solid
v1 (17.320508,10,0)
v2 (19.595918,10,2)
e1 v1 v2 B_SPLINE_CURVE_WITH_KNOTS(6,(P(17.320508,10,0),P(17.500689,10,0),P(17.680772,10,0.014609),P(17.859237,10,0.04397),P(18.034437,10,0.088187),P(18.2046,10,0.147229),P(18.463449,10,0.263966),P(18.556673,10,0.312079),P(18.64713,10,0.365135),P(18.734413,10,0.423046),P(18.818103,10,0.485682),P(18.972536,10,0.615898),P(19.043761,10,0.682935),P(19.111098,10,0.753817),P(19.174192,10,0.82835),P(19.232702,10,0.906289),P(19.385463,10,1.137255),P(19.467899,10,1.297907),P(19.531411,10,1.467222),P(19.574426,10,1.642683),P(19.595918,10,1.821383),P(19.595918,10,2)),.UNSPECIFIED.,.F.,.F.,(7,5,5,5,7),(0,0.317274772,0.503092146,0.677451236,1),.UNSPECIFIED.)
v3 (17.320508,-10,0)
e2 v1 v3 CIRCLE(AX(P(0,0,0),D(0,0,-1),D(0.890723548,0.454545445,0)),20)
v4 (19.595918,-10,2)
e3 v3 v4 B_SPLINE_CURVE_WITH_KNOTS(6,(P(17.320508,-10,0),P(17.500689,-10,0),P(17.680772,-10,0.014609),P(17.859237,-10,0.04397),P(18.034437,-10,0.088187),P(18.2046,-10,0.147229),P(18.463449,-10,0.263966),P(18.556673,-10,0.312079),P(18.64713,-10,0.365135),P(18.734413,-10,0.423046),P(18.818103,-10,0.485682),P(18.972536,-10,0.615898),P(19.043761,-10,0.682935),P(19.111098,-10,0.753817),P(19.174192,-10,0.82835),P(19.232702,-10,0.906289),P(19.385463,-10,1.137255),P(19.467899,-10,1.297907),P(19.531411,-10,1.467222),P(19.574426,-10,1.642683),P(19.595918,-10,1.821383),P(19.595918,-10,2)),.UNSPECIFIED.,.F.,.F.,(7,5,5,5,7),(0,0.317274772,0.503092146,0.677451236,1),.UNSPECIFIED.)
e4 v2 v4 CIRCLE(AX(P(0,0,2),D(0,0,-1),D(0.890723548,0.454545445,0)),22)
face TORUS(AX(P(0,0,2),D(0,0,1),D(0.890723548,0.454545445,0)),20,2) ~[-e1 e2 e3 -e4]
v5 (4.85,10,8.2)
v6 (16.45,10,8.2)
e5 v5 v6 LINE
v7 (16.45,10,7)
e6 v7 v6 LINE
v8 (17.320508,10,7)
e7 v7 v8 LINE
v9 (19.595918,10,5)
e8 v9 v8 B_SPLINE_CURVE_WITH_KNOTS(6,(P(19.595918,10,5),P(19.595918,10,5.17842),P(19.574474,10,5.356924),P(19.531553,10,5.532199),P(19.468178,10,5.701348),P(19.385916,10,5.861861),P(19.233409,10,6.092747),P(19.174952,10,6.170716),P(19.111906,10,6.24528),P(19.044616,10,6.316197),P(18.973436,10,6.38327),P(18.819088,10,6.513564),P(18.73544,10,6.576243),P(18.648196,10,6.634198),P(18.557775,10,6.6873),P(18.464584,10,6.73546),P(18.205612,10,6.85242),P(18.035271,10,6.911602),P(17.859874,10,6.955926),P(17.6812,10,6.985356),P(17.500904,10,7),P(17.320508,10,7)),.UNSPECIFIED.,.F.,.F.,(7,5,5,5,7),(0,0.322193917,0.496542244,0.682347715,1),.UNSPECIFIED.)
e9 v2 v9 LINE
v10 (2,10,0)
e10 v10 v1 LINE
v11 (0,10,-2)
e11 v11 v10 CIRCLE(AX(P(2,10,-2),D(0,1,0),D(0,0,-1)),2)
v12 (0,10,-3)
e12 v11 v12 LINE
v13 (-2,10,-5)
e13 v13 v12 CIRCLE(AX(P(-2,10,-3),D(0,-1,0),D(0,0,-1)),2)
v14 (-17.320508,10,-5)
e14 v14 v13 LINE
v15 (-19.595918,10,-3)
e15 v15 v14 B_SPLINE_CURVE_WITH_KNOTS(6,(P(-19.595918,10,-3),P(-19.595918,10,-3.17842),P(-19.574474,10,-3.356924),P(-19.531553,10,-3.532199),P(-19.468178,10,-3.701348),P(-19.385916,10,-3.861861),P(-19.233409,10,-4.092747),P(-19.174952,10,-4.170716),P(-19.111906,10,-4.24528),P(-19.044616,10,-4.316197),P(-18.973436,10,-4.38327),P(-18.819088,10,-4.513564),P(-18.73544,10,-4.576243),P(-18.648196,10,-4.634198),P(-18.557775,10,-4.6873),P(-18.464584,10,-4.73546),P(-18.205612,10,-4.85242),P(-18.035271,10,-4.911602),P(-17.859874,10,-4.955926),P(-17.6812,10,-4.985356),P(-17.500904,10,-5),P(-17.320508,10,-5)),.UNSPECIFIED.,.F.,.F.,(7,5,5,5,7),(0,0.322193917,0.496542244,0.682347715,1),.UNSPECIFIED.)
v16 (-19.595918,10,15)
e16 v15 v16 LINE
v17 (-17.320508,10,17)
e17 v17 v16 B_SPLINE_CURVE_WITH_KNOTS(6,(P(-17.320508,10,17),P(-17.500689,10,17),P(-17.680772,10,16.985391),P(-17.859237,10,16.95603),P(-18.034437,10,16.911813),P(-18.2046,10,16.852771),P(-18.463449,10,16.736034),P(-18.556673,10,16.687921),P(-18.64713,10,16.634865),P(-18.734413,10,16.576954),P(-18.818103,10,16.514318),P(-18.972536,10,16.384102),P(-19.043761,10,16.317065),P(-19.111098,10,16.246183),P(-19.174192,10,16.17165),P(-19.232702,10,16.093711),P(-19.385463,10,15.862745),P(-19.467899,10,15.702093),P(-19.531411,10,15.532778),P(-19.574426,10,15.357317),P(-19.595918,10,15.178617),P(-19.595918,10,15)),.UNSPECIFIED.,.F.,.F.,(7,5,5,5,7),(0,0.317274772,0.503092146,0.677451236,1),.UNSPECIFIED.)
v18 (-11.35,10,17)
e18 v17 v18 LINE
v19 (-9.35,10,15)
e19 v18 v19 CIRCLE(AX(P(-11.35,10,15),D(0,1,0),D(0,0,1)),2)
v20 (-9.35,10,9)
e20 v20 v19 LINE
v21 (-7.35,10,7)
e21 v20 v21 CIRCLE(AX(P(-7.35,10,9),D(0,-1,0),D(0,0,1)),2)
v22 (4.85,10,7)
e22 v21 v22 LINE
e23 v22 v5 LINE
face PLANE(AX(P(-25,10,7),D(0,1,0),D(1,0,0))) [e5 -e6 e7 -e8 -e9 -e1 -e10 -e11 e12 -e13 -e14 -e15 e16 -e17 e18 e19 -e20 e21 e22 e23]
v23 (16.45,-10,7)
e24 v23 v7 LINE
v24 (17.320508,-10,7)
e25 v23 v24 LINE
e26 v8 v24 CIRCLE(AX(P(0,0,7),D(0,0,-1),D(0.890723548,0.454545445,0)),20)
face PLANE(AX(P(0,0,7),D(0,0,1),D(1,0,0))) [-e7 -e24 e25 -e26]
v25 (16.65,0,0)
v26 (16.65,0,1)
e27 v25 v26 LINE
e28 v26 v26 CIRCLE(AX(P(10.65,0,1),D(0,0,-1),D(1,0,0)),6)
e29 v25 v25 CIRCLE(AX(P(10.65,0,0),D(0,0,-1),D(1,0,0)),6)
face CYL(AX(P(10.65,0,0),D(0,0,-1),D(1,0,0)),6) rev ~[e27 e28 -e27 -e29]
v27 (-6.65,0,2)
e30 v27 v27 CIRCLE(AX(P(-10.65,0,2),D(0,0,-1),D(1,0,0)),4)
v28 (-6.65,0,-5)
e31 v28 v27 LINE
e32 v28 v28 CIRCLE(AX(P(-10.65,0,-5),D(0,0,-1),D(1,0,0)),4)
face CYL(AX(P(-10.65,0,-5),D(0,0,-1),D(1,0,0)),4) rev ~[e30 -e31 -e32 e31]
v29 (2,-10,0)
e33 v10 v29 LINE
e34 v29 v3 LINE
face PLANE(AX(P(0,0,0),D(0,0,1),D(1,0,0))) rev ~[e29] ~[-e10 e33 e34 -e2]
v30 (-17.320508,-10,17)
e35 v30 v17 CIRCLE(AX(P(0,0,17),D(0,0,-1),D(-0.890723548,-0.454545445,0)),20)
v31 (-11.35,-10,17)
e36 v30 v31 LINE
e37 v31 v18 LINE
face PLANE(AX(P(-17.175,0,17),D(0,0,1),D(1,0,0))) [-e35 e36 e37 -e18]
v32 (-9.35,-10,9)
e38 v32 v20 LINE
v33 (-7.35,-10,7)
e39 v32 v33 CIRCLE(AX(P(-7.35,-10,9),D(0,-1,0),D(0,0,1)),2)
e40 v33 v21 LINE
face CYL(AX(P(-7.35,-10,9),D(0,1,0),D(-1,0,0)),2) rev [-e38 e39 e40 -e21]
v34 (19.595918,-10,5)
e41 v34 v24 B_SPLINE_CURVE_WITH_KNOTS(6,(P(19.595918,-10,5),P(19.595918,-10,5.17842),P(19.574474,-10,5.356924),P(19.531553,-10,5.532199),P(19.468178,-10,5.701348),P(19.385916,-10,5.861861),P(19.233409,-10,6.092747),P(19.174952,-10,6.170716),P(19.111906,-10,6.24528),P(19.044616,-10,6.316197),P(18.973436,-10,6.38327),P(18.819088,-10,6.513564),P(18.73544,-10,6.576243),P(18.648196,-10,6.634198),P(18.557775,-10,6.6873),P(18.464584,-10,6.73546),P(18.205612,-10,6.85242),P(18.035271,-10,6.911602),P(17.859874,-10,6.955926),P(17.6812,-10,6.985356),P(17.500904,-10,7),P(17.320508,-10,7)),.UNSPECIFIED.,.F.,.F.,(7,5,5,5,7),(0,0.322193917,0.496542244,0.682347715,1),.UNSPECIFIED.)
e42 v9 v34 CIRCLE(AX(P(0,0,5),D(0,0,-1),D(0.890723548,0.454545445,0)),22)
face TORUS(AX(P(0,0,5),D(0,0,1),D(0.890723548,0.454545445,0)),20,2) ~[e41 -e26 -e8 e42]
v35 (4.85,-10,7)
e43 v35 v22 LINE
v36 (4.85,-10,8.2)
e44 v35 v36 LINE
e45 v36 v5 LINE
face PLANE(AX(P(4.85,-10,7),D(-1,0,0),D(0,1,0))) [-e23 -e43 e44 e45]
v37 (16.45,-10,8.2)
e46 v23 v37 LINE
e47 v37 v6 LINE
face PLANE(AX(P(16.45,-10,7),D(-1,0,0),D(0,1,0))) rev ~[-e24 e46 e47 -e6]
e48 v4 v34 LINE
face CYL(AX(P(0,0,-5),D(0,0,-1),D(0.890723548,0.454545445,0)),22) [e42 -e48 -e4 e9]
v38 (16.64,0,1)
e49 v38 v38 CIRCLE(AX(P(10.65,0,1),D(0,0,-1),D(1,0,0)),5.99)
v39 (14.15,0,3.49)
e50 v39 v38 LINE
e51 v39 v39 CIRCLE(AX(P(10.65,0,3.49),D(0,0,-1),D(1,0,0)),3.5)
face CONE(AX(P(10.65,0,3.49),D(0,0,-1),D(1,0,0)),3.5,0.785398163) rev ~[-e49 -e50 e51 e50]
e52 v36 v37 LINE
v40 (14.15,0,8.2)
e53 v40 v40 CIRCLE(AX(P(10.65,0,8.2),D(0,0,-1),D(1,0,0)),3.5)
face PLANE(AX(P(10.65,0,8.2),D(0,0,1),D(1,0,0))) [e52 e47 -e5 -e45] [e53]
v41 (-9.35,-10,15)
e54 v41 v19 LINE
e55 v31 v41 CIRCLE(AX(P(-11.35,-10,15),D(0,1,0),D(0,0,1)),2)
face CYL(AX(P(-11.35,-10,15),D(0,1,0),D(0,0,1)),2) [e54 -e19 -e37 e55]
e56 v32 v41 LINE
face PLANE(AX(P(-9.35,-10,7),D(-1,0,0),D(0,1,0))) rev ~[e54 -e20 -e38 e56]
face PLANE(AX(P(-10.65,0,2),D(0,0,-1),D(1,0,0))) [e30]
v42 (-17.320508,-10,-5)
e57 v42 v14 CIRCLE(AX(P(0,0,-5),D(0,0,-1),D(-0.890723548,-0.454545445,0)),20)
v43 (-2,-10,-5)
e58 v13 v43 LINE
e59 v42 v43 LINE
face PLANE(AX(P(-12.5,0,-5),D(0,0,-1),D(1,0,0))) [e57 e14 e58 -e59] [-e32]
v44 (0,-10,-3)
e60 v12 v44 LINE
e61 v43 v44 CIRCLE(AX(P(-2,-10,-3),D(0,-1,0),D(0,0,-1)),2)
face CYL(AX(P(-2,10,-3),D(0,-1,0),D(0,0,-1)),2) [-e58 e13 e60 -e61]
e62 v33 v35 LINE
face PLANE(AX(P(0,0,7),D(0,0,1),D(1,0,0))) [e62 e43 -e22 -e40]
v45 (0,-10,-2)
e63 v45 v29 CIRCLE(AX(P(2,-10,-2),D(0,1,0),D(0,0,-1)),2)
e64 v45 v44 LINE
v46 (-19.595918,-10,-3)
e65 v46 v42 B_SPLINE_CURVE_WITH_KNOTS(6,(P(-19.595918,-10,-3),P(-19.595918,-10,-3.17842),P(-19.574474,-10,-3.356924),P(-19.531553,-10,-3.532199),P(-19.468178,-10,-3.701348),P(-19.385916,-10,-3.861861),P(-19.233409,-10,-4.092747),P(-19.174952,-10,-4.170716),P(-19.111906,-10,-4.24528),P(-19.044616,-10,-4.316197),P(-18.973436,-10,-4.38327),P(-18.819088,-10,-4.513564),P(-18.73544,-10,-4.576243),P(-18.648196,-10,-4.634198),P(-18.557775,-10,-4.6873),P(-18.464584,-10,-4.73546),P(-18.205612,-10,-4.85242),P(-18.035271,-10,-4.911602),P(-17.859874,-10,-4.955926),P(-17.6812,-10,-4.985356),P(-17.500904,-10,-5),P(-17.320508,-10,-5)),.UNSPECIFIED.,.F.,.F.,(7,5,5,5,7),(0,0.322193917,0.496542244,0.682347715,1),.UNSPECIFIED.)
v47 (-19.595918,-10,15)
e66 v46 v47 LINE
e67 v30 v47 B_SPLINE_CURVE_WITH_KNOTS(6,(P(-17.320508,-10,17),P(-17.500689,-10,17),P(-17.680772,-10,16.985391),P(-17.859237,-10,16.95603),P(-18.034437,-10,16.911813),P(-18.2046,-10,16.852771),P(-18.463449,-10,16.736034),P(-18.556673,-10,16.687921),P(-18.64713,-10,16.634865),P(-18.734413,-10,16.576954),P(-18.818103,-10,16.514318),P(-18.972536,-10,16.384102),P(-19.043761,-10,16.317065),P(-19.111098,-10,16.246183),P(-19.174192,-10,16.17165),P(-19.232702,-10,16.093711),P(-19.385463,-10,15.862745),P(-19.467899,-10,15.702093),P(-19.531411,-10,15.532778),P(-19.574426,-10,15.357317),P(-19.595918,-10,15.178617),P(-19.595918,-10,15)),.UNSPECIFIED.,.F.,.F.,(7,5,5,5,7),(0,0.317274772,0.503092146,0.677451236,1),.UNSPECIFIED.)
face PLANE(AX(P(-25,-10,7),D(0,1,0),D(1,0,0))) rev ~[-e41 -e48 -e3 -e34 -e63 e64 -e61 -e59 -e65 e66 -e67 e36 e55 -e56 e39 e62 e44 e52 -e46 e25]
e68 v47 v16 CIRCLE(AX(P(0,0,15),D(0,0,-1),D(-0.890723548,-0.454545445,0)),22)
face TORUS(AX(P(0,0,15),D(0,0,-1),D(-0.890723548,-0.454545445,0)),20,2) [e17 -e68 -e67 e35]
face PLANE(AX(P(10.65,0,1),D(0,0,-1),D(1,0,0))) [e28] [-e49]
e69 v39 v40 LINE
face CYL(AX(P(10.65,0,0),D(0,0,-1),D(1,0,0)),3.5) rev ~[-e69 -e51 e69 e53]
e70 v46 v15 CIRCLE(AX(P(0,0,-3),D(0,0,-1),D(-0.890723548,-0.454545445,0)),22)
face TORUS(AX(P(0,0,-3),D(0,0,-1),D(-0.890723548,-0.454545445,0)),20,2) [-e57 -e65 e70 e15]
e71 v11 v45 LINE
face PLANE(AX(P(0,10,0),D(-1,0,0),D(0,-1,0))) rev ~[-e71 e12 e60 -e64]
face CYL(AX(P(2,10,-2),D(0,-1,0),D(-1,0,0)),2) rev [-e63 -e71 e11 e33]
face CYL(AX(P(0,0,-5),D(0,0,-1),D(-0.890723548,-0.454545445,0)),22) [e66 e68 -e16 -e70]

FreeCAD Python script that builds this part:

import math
import FreeCAD as App
import Part
import Sketcher
from FreeCAD import Vector
Q = App.Units.Quantity


def edges_at(feature, points):
    """Names of the edges that pass closest to the given points."""
    edges = feature.Shape.Edges
    near = lambda p: min(range(len(edges)), key=lambda i: edges[i].distToShape(Part.Vertex(*p))[0])
    return sorted({f"Edge{near(p) + 1}" for p in points})


def add_polygon(sketch, points):
    """Adds a closed chain of lines whose ends are joined by coincident constraints."""
    first, n = sketch.GeometryCount, len(points)
    for a, b in zip(points, points[1:] + points[:1]):
        sketch.addGeometry(Part.LineSegment(App.Vector(*a, 0), App.Vector(*b, 0)), False)
    for i in range(n):
        sketch.addConstraint(Sketcher.Constraint("Coincident", first + i, 2, first + (i + 1) % n, 1))

doc = App.newDocument("Part")
body = doc.addObject("PartDesign::Body", "Body")

sketch1 = body.newObject("Sketcher::SketchObject", "Sketch")
sketch1.AttachmentSupport = (doc.getObject("XY_Plane"), [""])
sketch1.MapMode = "FlatFace"
add_polygon(sketch1, [(-25, 10), (-25, -10), (25, -10), (25, 10)])
sketch1.addConstraint([
    Sketcher.Constraint("Vertical", 0),
    Sketcher.Constraint("Horizontal", 1),
    Sketcher.Constraint("Vertical", 2),
    Sketcher.Constraint("Horizontal", 3),
    Sketcher.Constraint("Symmetric", 0, 2, 2, 2, -1, 1),
    Sketcher.Constraint("DistanceX", 1, 1, 1, 2, Q("50 mm")),
    Sketcher.Constraint("DistanceY", 0, 2, 0, 1, Q("20 mm")),
])
pad1 = body.newObject("PartDesign::Pad", "Pad")
pad1.Profile = sketch1
pad1.Length = 7

sketch2 = body.newObject("Sketcher::SketchObject", "Sketch001")
sketch2.AttachmentSupport = (doc.getObject("XY_Plane"), [""])
sketch2.MapMode = "FlatFace"
sketch2.AttachmentOffset = App.Placement(Vector(0, 0, 7), App.Rotation())
add_polygon(sketch2, [(5, 10), (5, -10), (16, -10), (16, 10)])
sketch2.addConstraint([
    Sketcher.Constraint("Vertical", 0),
    Sketcher.Constraint("Horizontal", 1),
    Sketcher.Constraint("Vertical", 2),
    Sketcher.Constraint("Horizontal", 3),
    Sketcher.Constraint("DistanceY", 0, 2, 0, 1, Q("20 mm")),
    Sketcher.Constraint("DistanceX", 1, 1, 1, 2, Q("11.6 mm")),
    Sketcher.Constraint("DistanceY", 0, 2, -1, 1, Q("10 mm")),
    Sketcher.Constraint("DistanceX", -1, 1, 0, 2, Q("4.85 mm")),
])
pad2 = body.newObject("PartDesign::Pad", "Pad001")
pad2.Profile = sketch2
pad2.Length = 1.2

sketch3 = body.newObject("Sketcher::SketchObject", "Sketch002")
sketch3.AttachmentSupport = (doc.getObject("XY_Plane"), [""])
sketch3.MapMode = "FlatFace"
sketch3.addGeometry(Part.Circle(Vector(10.7, 0, 0), Vector(0, 0, 1), 3.5), False)
sketch3.addConstraint([
    Sketcher.Constraint("PointOnObject", 0, 3, -1),
    Sketcher.Constraint("Diameter", 0, Q("7 mm")),
    Sketcher.Constraint("DistanceX", -1, 1, 0, 3, Q("10.65 mm")),
])
pocket1 = body.newObject("PartDesign::Pocket", "Pocket")
pocket1.Profile = sketch3
pocket1.Type = "ThroughAll"
pocket1.Reversed = True

sketch4 = body.newObject("Sketcher::SketchObject", "Sketch003")
sketch4.AttachmentSupport = (doc.getObject("XY_Plane"), [""])
sketch4.MapMode = "FlatFace"
sketch4.addGeometry(Part.Circle(Vector(11, 0, 0), Vector(0, 0, 1), 6), False)
sketch4.addConstraint([
    Sketcher.Constraint("PointOnObject", 0, 3, -1),
    Sketcher.Constraint("Diameter", 0, Q("12 mm")),
    Sketcher.Constraint("DistanceX", -1, 1, 0, 3, Q("10.65 mm")),
])
pocket2 = body.newObject("PartDesign::Pocket", "Pocket001")
pocket2.Profile = sketch4
pocket2.Length = 1
pocket2.Reversed = True
doc.recompute()

chamfer = body.newObject("PartDesign::Chamfer", "Chamfer")
chamfer.Base = (pocket2, edges_at(pocket2, [(7.15, 0, 1)]))
chamfer.Size = 2.49

sketch5 = body.newObject("Sketcher::SketchObject", "Sketch004")
sketch5.AttachmentSupport = (doc.getObject("XY_Plane"), [""])
sketch5.MapMode = "FlatFace"
add_polygon(sketch5, [(-25, -10), (-25, 10), (0, 10), (0, -10)])
sketch5.addConstraint([
    Sketcher.Constraint("Vertical", 0),
    Sketcher.Constraint("Horizontal", 1),
    Sketcher.Constraint("Vertical", 2),
    Sketcher.Constraint("Horizontal", 3),
    Sketcher.Constraint("Symmetric", 1, 2, 2, 2, -1, 1),
    Sketcher.Constraint("DistanceX", 1, 1, 1, 2, Q("25 mm")),
    Sketcher.Constraint("DistanceY", 0, 1, 0, 2, Q("20 mm")),
])
pad3 = body.newObject("PartDesign::Pad", "Pad002")
pad3.Profile = sketch5
pad3.Length = 5
pad3.Reversed = True

sketch6 = body.newObject("Sketcher::SketchObject", "Sketch005")
sketch6.AttachmentSupport = (doc.getObject("XY_Plane"), [""])
sketch6.MapMode = "FlatFace"
sketch6.AttachmentOffset = App.Placement(Vector(0, 0, -5), App.Rotation())
sketch6.addGeometry(Part.Circle(Vector(-10.7, 0, 0), Vector(0, 0, 1), 4), False)
sketch6.addConstraint([
    Sketcher.Constraint("PointOnObject", 0, 3, -1),
    Sketcher.Constraint("Diameter", 0, Q("8 mm")),
    Sketcher.Constraint("DistanceX", 0, 3, -1, 1, Q("10.65 mm")),
])
pocket3 = body.newObject("PartDesign::Pocket", "Pocket002")
pocket3.Profile = sketch6
pocket3.Length = 7
pocket3.Reversed = True

sketch7 = body.newObject("Sketcher::SketchObject", "Sketch006")
sketch7.AttachmentSupport = (doc.getObject("XY_Plane"), [""])
sketch7.MapMode = "FlatFace"
sketch7.AttachmentOffset = App.Placement(Vector(0, 0, 7), App.Rotation())
add_polygon(sketch7, [(-25, 10), (-25, -10), (-9, -10), (-9, 10)])
sketch7.addConstraint([
    Sketcher.Constraint("Vertical", 0),
    Sketcher.Constraint("Horizontal", 1),
    Sketcher.Constraint("Vertical", 2),
    Sketcher.Constraint("Horizontal", 3),
    Sketcher.Constraint("DistanceY", 0, 2, 0, 1, Q("20 mm")),
    Sketcher.Constraint("DistanceX", 0, 2, -1, 1, Q("25 mm")),
    Sketcher.Constraint("DistanceY", 0, 2, -1, 1, Q("10 mm")),
    Sketcher.Constraint("DistanceX", 1, 1, 1, 2, Q("15.65 mm")),
])
pad4 = body.newObject("PartDesign::Pad", "Pad003")
pad4.Profile = sketch7
pad4.Length = 10

sketch8 = body.newObject("Sketcher::SketchObject", "Sketch007")
sketch8.AttachmentSupport = (doc.getObject("XY_Plane"), [""])
sketch8.MapMode = "FlatFace"
sketch8.AttachmentOffset = App.Placement(Vector(0, 0, -5), App.Rotation())
sketch8.addGeometry([
    Part.ArcOfCircle(Part.Circle(Vector(0, 0, 0), Vector(0, 0, 1), 22), math.radians(153), math.radians(207)),
    Part.LineSegment(Vector(-20, -10, 0), Vector(-25, -10, 0)),
    Part.LineSegment(Vector(-25, -10, 0), Vector(-25, 10, 0)),
    Part.LineSegment(Vector(-25, 10, 0), Vector(-20, 10, 0)),
    Part.ArcOfCircle(Part.Circle(Vector(0, 0, 0), Vector(0, 0, 1), 22), math.radians(-27), math.radians(27)),
    Part.LineSegment(Vector(20, 10, 0), Vector(25, 10, 0)),
    Part.LineSegment(Vector(25, 10, 0), Vector(25, -10, 0)),
    Part.LineSegment(Vector(25, -10, 0), Vector(20, -10, 0)),
], False)
sketch8.addConstraint([
    Sketcher.Constraint("Coincident", 0, 2, 1, 1),
    Sketcher.Constraint("Coincident", 1, 2, 2, 1),
    Sketcher.Constraint("Coincident", 2, 2, 3, 1),
    Sketcher.Constraint("Coincident", 3, 2, 0, 1),
    Sketcher.Constraint("Coincident", 4, 2, 5, 1),
    Sketcher.Constraint("Coincident", 5, 2, 6, 1),
    Sketcher.Constraint("Coincident", 6, 2, 7, 1),
    Sketcher.Constraint("Coincident", 7, 2, 4, 1),
    Sketcher.Constraint("Horizontal", 1),
    Sketcher.Constraint("Vertical", 2),
    Sketcher.Constraint("Horizontal", 3),
    Sketcher.Constraint("Horizontal", 5),
    Sketcher.Constraint("Vertical", 6),
    Sketcher.Constraint("Horizontal", 7),
    Sketcher.Constraint("Coincident", 0, 3, -1, 1),
    Sketcher.Constraint("Coincident", 4, 3, -1, 1),
    Sketcher.Constraint("Equal", 0, 4),
    Sketcher.Constraint("Symmetric", 1, 2, 5, 2, -1, 1),
    Sketcher.Constraint("Horizontal", 3, 2, 4, 2),
    Sketcher.Constraint("Horizontal", 1, 2, 6, 2),
    Sketcher.Constraint("Radius", 0, Q("22 mm")),
    Sketcher.Constraint("DistanceY", 2, 1, 2, 2, Q("20 mm")),
    Sketcher.Constraint("DistanceX", 1, 2, -1, 1, Q("25 mm")),
])
pocket4 = body.newObject("PartDesign::Pocket", "Pocket003")
pocket4.Profile = sketch8
pocket4.Type = "ThroughAll"
pocket4.Reversed = True
doc.recompute()

fillet = body.newObject("PartDesign::Fillet", "Fillet")
fillet.Base = (pocket4, edges_at(pocket4, [
    (-22, 0, -5),
    (0, 0, -5),
    (0, 0, 0),
    (22, 0, 0),
    (22, 0, 7),
    (-9.35, 0, 17),
    (-22, 0, 17),
    (-9.35, 0, 7),
]))
fillet.Radius = 2

doc.recompute()
